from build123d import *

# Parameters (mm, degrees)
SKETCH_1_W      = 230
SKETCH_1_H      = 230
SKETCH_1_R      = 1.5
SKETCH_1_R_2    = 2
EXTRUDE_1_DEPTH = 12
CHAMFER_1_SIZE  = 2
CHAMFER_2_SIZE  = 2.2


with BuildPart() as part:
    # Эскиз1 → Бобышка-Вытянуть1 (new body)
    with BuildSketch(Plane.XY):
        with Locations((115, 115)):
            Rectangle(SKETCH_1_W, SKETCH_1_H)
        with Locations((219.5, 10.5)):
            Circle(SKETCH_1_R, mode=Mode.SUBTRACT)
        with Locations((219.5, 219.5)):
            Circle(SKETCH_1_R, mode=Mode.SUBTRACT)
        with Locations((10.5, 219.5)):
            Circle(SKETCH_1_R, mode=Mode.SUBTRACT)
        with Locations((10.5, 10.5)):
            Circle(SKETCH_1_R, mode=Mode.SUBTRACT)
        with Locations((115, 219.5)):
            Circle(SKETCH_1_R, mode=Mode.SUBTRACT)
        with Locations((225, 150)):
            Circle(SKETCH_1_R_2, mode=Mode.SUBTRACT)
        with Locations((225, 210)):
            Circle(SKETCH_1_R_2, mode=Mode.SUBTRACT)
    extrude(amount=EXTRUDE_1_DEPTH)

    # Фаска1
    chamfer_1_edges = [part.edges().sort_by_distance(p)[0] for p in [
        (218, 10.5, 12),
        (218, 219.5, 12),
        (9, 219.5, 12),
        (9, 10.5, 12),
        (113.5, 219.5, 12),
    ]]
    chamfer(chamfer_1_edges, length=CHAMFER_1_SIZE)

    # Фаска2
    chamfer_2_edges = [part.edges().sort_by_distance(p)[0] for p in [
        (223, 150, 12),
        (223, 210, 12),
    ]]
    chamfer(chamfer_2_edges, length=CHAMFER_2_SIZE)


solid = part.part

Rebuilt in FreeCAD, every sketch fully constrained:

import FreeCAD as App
import Part
import Sketcher

V = App.Vector
Q = App.Units.Quantity


def edges_at(feature, points):
    """Names of the edges that pass closest to the given points."""
    edges = feature.Shape.Edges
    near = lambda p: min(range(len(edges)), key=lambda i: edges[i].distToShape(Part.Vertex(*p))[0])
    return sorted({f"Edge{near(p) + 1}" for p in points})


def add_polygon(sketch, points):
    """Adds a closed chain of lines whose ends are joined by coincident constraints."""
    first, n = sketch.GeometryCount, len(points)
    for a, b in zip(points, points[1:] + points[:1]):
        sketch.addGeometry(Part.LineSegment(App.Vector(*a, 0), App.Vector(*b, 0)), False)
    for i in range(n):
        sketch.addConstraint(Sketcher.Constraint("Coincident", first + i, 2, first + (i + 1) % n, 1))

doc = App.newDocument("Part")
body = doc.addObject("PartDesign::Body", "Body")

# Sketch on XY plane
sketch1 = doc.addObject("Sketcher::SketchObject", "Sketch")
body.addObject(sketch1)
sketch1.AttachmentSupport = (doc.XY_Plane, [""])
sketch1.MapMode = "FlatFace"
add_polygon(sketch1, [(0, 230), (0, 0), (230, 0), (230, 230)])  # lines 0-3
sketch1.addGeometry(Part.Circle(V(10.5, 10.5, 0), V(0, 0, 1), 1.5), False)  # 4
sketch1.addGeometry(Part.Circle(V(219.5, 10.5, 0), V(0, 0, 1), 1.5), False)  # 5
sketch1.addGeometry(Part.Circle(V(10.5, 219.5, 0), V(0, 0, 1), 1.5), False)  # 6
sketch1.addGeometry(Part.Circle(V(115, 219.5, 0), V(0, 0, 1), 1.5), False)  # 7
sketch1.addGeometry(Part.Circle(V(225, 150, 0), V(0, 0, 1), 2), False)  # 8
sketch1.addGeometry(Part.Circle(V(225, 210, 0), V(0, 0, 1), 2), False)  # 9
sketch1.addGeometry(Part.Circle(V(219.5, 219.5, 0), V(0, 0, 1), 1.5), False)  # 10
sketch1.addConstraint([
    Sketcher.Constraint("Vertical", 0),
    Sketcher.Constraint("Horizontal", 1),
    Sketcher.Constraint("Vertical", 2),
    Sketcher.Constraint("Horizontal", 3),
    Sketcher.Constraint("Coincident", 0, 2, -1, 1),
    Sketcher.Constraint("Equal", 4, 5),
    Sketcher.Constraint("Equal", 5, 6),
    Sketcher.Constraint("Equal", 6, 7),
    Sketcher.Constraint("Equal", 8, 9),
    Sketcher.Constraint("Equal", 7, 10),
    Sketcher.Constraint("Horizontal", 4, 3, 5, 3),
    Sketcher.Constraint("Horizontal", 6, 3, 7, 3),
    Sketcher.Constraint("Horizontal", 7, 3, 10, 3),
    Sketcher.Constraint("Vertical", 4, 3, 6, 3),
    Sketcher.Constraint("Vertical", 8, 3, 9, 3),
    Sketcher.Constraint("Vertical", 5, 3, 10, 3),
    Sketcher.Constraint("Equal", 3, 0),
    Sketcher.Constraint("Diameter", 4, Q("3 mm")),
    Sketcher.Constraint("Diameter", 8, Q("4 mm")),
    Sketcher.Constraint("DistanceX", 1, 1, 1, 2, Q("230 mm")),
    Sketcher.Constraint("DistanceX", -1, 1, 7, 3, Q("115 mm")),
    Sketcher.Constraint("DistanceX", -1, 1, 8, 3, Q("225 mm")),
    Sketcher.Constraint("DistanceY", -1, 1, 8, 3, Q("150 mm")),
    Sketcher.Constraint("DistanceY", -1, 1, 9, 3, Q("210 mm")),
    Sketcher.Constraint("DistanceX", 4, 3, 5, 3, Q("209 mm")),
    Sketcher.Constraint("DistanceY", 4, 3, 6, 3, Q("209 mm")),
    Sketcher.Constraint("DistanceX", -1, 1, 4, 3, Q("10.5 mm")),
    Sketcher.Constraint("DistanceY", -1, 1, 4, 3, Q("10.5 mm")),
])
pad1 = doc.addObject("PartDesign::Pad", "Pad")
body.addObject(pad1)
pad1.Profile = sketch1
pad1.Length = 12
doc.recompute()

chamfer = doc.addObject("PartDesign::Chamfer", "Chamfer")
body.addObject(chamfer)
chamfer.Base = (pad1, edges_at(pad1, [
    (218, 10.5, 12),
    (218, 219.5, 12),
    (9, 219.5, 12),
    (9, 10.5, 12),
    (113.5, 219.5, 12),
]))
chamfer.Size = 2
doc.recompute()

chamfer2 = doc.addObject("PartDesign::Chamfer", "Chamfer001")
body.addObject(chamfer2)
chamfer2.Base = (chamfer, edges_at(chamfer, [(223, 150, 12), (223, 210, 12)]))
chamfer2.Size = 2.2

doc.recompute()
